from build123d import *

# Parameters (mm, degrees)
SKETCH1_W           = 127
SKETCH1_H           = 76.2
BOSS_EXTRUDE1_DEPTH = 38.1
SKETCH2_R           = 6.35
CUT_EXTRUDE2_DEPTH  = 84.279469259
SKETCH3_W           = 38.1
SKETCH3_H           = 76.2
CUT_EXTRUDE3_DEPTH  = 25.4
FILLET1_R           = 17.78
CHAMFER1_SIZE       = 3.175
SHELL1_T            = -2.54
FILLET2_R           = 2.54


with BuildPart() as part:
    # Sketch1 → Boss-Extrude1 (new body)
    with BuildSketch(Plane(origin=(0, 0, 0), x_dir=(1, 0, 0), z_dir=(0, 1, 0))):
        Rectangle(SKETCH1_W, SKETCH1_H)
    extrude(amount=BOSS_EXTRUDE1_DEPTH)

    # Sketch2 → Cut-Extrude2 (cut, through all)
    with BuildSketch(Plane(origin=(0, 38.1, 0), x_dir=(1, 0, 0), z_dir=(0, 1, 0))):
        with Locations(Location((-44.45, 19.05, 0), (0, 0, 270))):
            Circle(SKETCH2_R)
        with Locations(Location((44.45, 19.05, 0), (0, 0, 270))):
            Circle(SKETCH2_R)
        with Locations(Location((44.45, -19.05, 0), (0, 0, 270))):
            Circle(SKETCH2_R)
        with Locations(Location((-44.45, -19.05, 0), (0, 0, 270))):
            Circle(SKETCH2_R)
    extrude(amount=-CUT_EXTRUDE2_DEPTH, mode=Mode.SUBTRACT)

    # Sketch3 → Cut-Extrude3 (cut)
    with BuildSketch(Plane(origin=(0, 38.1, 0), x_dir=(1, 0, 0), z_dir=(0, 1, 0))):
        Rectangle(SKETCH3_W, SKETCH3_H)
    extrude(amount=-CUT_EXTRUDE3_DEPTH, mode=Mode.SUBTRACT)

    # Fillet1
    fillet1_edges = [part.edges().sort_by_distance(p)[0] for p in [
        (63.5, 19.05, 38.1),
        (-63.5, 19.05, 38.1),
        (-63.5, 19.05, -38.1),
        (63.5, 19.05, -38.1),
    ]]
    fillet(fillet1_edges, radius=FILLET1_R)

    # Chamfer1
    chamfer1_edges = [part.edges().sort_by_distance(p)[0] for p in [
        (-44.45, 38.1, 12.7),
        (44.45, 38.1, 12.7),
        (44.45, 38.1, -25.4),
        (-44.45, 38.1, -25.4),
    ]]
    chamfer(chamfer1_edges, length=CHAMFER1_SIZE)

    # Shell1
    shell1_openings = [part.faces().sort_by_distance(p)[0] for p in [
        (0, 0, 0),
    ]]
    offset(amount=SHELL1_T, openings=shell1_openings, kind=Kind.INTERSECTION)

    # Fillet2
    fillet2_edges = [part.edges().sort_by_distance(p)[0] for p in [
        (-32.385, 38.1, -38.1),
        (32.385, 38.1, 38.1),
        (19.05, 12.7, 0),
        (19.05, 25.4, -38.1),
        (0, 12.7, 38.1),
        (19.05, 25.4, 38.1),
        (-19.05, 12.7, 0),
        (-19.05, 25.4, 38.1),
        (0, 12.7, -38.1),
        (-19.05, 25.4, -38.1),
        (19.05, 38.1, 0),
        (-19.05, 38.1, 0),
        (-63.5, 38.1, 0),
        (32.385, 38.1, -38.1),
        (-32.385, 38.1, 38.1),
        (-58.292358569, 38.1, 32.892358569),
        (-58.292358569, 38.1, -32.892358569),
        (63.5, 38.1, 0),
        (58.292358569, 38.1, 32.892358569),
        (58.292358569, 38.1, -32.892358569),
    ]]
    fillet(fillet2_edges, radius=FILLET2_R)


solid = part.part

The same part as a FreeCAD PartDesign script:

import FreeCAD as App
import Part
import Sketcher
from FreeCAD import Vector
Q = App.Units.Quantity


def edges_at(feature, points):
    """Names of the edges that pass closest to the given points."""
    edges = feature.Shape.Edges
    near = lambda p: min(range(len(edges)), key=lambda i: edges[i].distToShape(Part.Vertex(*p))[0])
    return sorted({f"Edge{near(p) + 1}" for p in points})


def faces_at(feature, points):
    """Names of the faces that lie closest to the given points."""
    faces = feature.Shape.Faces
    near = lambda p: min(range(len(faces)), key=lambda i: faces[i].distToShape(Part.Vertex(*p))[0])
    return sorted({f"Face{near(p) + 1}" for p in points})


def add_polygon(sketch, points):
    """Adds a closed chain of lines whose ends are joined by coincident constraints."""
    first, n = sketch.GeometryCount, len(points)
    for a, b in zip(points, points[1:] + points[:1]):
        sketch.addGeometry(Part.LineSegment(App.Vector(*a, 0), App.Vector(*b, 0)), False)
    for i in range(n):
        sketch.addConstraint(Sketcher.Constraint("Coincident", first + i, 2, first + (i + 1) % n, 1))

doc = App.newDocument("Part")
body = doc.addObject("PartDesign::Body", "Body")

# Sketch on XZ plane
sketch1 = doc.addObject("Sketcher::SketchObject", "Sketch")
body.addObject(sketch1)
sketch1.AttachmentSupport = (doc.XZ_Plane, [""])
sketch1.MapMode = "FlatFace"
add_polygon(sketch1, [(-64, -38), (-64, 38), (64, 38), (64, -38)])  # lines 0-3
sketch1.addConstraint([
    Sketcher.Constraint("Vertical", 0),
    Sketcher.Constraint("Horizontal", 1),
    Sketcher.Constraint("Vertical", 2),
    Sketcher.Constraint("Horizontal", 3),
    Sketcher.Constraint("Symmetric", 0, 2, 2, 2, -1, 1),
    Sketcher.Constraint("DistanceX", 1, 1, 1, 2, Q("5 in")),
    Sketcher.Constraint("DistanceY", 0, 1, 0, 2, Q("3 in")),
])
pad1 = doc.addObject("PartDesign::Pad", "Pad")
body.addObject(pad1)
pad1.Profile = sketch1
pad1.Length = Q("1.5 in")
pad1.Reversed = True

# Sketch on XZ plane
sketch2 = doc.addObject("Sketcher::SketchObject", "Sketch001")
body.addObject(sketch2)
sketch2.AttachmentSupport = (doc.XZ_Plane, [""])
sketch2.MapMode = "FlatFace"
sketch2.AttachmentOffset = App.Placement(Vector(0, 0, -1.5 * 25.4), App.Rotation())
sketch2.addGeometry([
    Part.Circle(Vector(-44, -19, 0), Vector(0, 0, 1), 6),
    Part.Circle(Vector(44, -19, 0), Vector(0, 0, 1), 6),
    Part.Circle(Vector(44, 19, 0), Vector(0, 0, 1), 6),
    Part.Circle(Vector(-44, 19, 0), Vector(0, 0, 1), 6),
], False)
sketch2.addConstraint([
    Sketcher.Constraint("Equal", 0, 1),
    Sketcher.Constraint("Equal", 1, 2),
    Sketcher.Constraint("Equal", 2, 3),
    Sketcher.Constraint("Symmetric", 0, 3, 2, 3, -1, 1),
    Sketcher.Constraint("Symmetric", 1, 3, 3, 3, -1, 1),
    Sketcher.Constraint("Symmetric", 0, 3, 1, 3, -2),
    Sketcher.Constraint("Diameter", 0, Q("0.5 in")),
    Sketcher.Constraint("DistanceX", 0, 3, 1, 3, Q("3.5 in")),
    Sketcher.Constraint("DistanceY", 1, 3, 2, 3, Q("1.5 in")),
])
pocket1 = doc.addObject("PartDesign::Pocket", "Pocket")
body.addObject(pocket1)
pocket1.Profile = sketch2
pocket1.Type = "ThroughAll"
pocket1.Reversed = True

# Sketch on XZ plane
sketch3 = doc.addObject("Sketcher::SketchObject", "Sketch002")
body.addObject(sketch3)
sketch3.AttachmentSupport = (doc.XZ_Plane, [""])
sketch3.MapMode = "FlatFace"
sketch3.AttachmentOffset = App.Placement(Vector(0, 0, -1.5 * 25.4), App.Rotation())
add_polygon(sketch3, [(-19, -38), (-19, 38), (19, 38), (19, -38)])  # lines 0-3
sketch3.addConstraint([
    Sketcher.Constraint("Vertical", 0),
    Sketcher.Constraint("Horizontal", 1),
    Sketcher.Constraint("Vertical", 2),
    Sketcher.Constraint("Horizontal", 3),
    Sketcher.Constraint("Symmetric", 0, 2, 2, 2, -1, 1),
    Sketcher.Constraint("DistanceY", 0, 1, 0, 2, Q("3 in")),
    Sketcher.Constraint("DistanceX", 1, 1, 1, 2, Q("1.5 in")),
])
pocket2 = doc.addObject("PartDesign::Pocket", "Pocket001")
body.addObject(pocket2)
pocket2.Profile = sketch3
pocket2.Length = Q("1 in")
pocket2.Reversed = True
doc.recompute()

fillet = doc.addObject("PartDesign::Fillet", "Fillet")
body.addObject(fillet)
fillet.Base = (pocket2, edges_at(pocket2, [
    (63.5, 19.05, 38.1),
    (-63.5, 19.05, 38.1),
    (-63.5, 19.05, -38.1),
    (63.5, 19.05, -38.1),
]))
fillet.Radius = Q("0.7 in")
doc.recompute()

chamfer = doc.addObject("PartDesign::Chamfer", "Chamfer")
body.addObject(chamfer)
chamfer.Base = (fillet, edges_at(fillet, [
    (-44.45, 38.1, 12.7),
    (44.45, 38.1, 12.7),
    (44.45, 38.1, -25.4),
    (-44.45, 38.1, -25.4),
]))
chamfer.Size = Q("0.125 in")
doc.recompute()

thickness = doc.addObject("PartDesign::Thickness", "Thickness")
body.addObject(thickness)
thickness.Base = (chamfer, faces_at(chamfer, [(0, 0, 0)]))
thickness.Value = Q("0.1 in")
thickness.Reversed = True
thickness.Join = "Intersection"
doc.recompute()

fillet2 = doc.addObject("PartDesign::Fillet", "Fillet001")
body.addObject(fillet2)
fillet2.Base = (thickness, edges_at(thickness, [
    (-32.385, 38.1, -38.1),
    (32.385, 38.1, 38.1),
    (19.05, 12.7, 0),
    (19.05, 25.4, -38.1),
    (0, 12.7, 38.1),
    (19.05, 25.4, 38.1),
    (-19.05, 12.7, 0),
    (-19.05, 25.4, 38.1),
    (0, 12.7, -38.1),
    (-19.05, 25.4, -38.1),
    (19.05, 38.1, 0),
    (-19.05, 38.1, 0),
    (-63.5, 38.1, 0),
    (32.385, 38.1, -38.1),
    (-32.385, 38.1, 38.1),
    (-58.292, 38.1, 32.892),
    (-58.292, 38.1, -32.892),
    (63.5, 38.1, 0),
    (58.292, 38.1, 32.892),
    (58.292, 38.1, -32.892),
]))
fillet2.Radius = Q("0.1 in")

doc.recompute()
